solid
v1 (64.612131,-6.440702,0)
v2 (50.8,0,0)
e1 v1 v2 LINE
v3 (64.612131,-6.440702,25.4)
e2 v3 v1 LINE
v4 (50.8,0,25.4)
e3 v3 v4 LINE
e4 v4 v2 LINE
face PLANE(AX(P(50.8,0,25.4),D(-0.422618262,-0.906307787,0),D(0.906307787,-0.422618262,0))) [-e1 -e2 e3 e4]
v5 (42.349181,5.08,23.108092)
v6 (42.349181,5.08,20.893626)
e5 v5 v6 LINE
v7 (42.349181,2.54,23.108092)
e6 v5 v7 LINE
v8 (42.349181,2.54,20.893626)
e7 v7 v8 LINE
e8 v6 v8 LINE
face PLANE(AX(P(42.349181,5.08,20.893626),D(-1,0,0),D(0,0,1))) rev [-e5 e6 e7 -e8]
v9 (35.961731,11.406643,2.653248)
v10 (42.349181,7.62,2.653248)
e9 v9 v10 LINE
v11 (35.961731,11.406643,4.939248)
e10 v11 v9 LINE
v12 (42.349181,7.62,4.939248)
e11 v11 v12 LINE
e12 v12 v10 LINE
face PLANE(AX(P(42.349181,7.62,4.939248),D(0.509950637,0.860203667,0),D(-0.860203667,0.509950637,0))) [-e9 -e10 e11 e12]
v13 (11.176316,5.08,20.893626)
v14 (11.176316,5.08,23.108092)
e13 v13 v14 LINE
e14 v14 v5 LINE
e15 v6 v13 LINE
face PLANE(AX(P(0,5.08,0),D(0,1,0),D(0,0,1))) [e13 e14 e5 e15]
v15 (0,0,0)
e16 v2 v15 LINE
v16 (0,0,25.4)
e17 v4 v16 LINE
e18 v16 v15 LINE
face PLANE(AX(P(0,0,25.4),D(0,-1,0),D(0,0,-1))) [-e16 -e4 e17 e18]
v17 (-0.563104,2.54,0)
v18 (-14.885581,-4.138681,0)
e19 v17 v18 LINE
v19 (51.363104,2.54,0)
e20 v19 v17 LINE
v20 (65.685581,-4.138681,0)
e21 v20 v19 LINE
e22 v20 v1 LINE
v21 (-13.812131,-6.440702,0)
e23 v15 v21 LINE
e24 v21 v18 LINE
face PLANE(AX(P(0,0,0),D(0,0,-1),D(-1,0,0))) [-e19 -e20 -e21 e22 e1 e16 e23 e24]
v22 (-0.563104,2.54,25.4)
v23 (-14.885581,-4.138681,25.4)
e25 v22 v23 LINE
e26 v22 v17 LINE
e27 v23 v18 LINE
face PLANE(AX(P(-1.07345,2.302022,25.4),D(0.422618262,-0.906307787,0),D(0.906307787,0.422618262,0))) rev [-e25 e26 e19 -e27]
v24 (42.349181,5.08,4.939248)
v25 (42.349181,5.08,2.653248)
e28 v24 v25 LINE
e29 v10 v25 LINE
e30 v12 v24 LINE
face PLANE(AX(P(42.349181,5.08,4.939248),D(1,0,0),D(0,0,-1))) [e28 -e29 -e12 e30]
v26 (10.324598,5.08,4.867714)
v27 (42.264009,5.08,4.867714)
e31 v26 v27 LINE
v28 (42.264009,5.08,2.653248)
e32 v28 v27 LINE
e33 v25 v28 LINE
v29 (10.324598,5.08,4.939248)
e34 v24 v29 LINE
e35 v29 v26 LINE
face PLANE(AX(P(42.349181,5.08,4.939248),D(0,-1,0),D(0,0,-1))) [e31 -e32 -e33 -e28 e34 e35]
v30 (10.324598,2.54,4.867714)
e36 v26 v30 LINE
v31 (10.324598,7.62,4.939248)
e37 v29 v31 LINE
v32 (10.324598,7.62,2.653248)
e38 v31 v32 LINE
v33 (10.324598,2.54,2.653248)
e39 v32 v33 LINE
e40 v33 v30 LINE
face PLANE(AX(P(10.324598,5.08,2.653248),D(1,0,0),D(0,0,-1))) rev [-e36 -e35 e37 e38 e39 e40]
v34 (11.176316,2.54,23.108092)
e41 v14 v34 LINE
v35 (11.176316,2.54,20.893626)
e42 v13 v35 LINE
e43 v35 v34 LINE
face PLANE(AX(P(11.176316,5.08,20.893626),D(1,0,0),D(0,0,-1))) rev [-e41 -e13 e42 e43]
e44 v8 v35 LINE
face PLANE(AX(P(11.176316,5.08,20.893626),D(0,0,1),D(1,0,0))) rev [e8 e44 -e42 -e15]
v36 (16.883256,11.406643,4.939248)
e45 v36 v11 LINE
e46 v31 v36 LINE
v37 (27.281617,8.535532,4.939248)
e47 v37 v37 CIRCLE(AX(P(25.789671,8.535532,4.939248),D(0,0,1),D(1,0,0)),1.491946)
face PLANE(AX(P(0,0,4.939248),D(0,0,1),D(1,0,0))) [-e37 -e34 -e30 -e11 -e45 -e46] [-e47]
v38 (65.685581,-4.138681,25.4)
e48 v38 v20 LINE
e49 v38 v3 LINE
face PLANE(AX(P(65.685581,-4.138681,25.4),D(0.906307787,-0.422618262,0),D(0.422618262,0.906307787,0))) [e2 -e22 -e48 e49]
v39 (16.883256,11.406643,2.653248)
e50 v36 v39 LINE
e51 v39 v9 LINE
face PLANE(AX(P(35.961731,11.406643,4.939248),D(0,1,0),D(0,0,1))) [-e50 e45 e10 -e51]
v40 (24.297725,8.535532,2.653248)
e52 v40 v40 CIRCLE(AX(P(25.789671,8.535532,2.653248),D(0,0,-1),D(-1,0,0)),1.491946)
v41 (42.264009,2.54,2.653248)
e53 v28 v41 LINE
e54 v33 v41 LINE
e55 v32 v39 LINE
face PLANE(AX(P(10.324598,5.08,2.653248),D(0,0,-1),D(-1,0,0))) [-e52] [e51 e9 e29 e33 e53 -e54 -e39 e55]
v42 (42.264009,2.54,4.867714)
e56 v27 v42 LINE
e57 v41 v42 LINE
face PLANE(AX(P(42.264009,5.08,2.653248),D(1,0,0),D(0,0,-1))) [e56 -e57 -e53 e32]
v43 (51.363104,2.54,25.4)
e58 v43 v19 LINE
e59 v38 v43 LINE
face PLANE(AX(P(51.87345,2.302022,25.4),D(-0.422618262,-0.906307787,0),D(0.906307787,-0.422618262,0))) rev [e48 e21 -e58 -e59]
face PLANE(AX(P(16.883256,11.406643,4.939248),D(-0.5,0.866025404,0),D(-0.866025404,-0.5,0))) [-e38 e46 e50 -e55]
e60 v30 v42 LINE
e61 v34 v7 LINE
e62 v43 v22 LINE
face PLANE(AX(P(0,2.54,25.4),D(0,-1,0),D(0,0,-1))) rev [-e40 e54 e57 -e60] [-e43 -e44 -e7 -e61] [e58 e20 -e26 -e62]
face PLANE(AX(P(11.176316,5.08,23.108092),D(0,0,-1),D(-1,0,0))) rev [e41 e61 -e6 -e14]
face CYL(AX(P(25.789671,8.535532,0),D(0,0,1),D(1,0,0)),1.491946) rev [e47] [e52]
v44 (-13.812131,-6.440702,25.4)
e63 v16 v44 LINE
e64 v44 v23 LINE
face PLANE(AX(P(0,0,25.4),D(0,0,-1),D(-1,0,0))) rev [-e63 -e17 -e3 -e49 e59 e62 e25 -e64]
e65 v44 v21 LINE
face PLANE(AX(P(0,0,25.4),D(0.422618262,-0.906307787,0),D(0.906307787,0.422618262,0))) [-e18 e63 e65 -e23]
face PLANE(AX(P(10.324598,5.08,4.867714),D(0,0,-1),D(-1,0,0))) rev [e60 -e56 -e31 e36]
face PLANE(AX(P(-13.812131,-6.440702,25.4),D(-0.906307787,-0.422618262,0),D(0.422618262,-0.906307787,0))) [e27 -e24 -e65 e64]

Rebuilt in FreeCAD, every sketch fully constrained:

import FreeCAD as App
import Part
import Sketcher
from FreeCAD import Vector
Q = App.Units.Quantity


def add_polygon(sketch, points):
    """Adds a closed chain of lines whose ends are joined by coincident constraints."""
    first, n = sketch.GeometryCount, len(points)
    for a, b in zip(points, points[1:] + points[:1]):
        sketch.addGeometry(Part.LineSegment(App.Vector(*a, 0), App.Vector(*b, 0)), False)
    for i in range(n):
        sketch.addConstraint(Sketcher.Constraint("Coincident", first + i, 2, first + (i + 1) % n, 1))

doc = App.newDocument("Part")
params = doc.addObject("Spreadsheet::Sheet", "Params")
for row, (alias, value) in enumerate([
    ("sketch1_width", "2 in"),
    ("sketch1_length", "0.6 in"),
    ("sketch1_length2", "0.1 in"),
    ("pad1_length", "1 in"),
    ("pad2_length", "0.1 in"),
    ("pad3_length", "0.1 in"),
    ("sketch4_height", "0.1 in"),
    ("pad4_length", "0.09 in"),
], start=1):
    params.set(f"A{row}", alias)
    params.set(f"B{row}", "=" + value)
    params.setAlias(f"B{row}", alias)

body = doc.addObject("PartDesign::Body", "Body")

sketch1 = body.newObject("Sketcher::SketchObject", "Sketch")
sketch1.AttachmentSupport = (doc.getObject("XY_Plane"), [""])
sketch1.MapMode = "FlatFace"
add_polygon(sketch1, [(-13.812131, -6.440702), (0, 0), (50.8, 0), (64.612131, -6.440702), (65.685581, -4.138681), (51.363104, 2.54), (-0.563104, 2.54), (-14.885581, -4.138681)])
sketch1.addConstraint([
    Sketcher.Constraint("Horizontal", 1),
    Sketcher.Constraint("Horizontal", 5),
    Sketcher.Constraint("Coincident", 0, 2, -1, 1),
    Sketcher.Constraint("Perpendicular", 2, 3),
    Sketcher.Constraint("Perpendicular", 3, 4),
    Sketcher.Constraint("Parallel", 0, 6),
    Sketcher.Constraint("Perpendicular", 6, 7),
    Sketcher.Constraint("Horizontal", 3, 2, 6, 2),
    Sketcher.Constraint("Horizontal", 2, 2, 7, 2),
    Sketcher.Constraint("Equal", 0, 2),
    Sketcher.Constraint("DistanceX", 1, 1, 1, 2, Q("2 in")),
    Sketcher.Constraint("Angle", 0, Q("25 deg")),
    Sketcher.Constraint("Distance", 0, Q("0.6 in")),
    Sketcher.Constraint("Distance", 3, Q("0.1 in")),
    Sketcher.Constraint("DistanceY", -1, 1, 4, 2, Q("0.1 in")),
])
sketch1.setExpression("Constraints[18]", "Params.sketch1_width")
sketch1.setExpression("Constraints[20]", "Params.sketch1_length")
sketch1.setExpression("Constraints[21]", "Params.sketch1_length2")
pad1 = body.newObject("PartDesign::Pad", "Pad")
pad1.Profile = sketch1
pad1.setExpression("Length", "Params.pad1_length")

sketch2 = body.newObject("Sketcher::SketchObject", "Sketch001")
sketch2.AttachmentSupport = (doc.getObject("XZ_Plane"), [""])
sketch2.MapMode = "FlatFace"
sketch2.AttachmentOffset = App.Placement(Vector(0, 0, -0.1 * 25.4), App.Rotation())
add_polygon(sketch2, [(10.324598, 2.653248), (10.324598, 4.867714), (42.264009, 4.867714), (42.264009, 2.653248)])
sketch2.addConstraint([
    Sketcher.Constraint("Vertical", 0),
    Sketcher.Constraint("Horizontal", 1),
    Sketcher.Constraint("Vertical", 2),
    Sketcher.Constraint("Horizontal", 3),
    Sketcher.Constraint("DistanceX", 1, 1, 1, 2, Q("31.939411 mm")),
    Sketcher.Constraint("DistanceY", 0, 1, 0, 2, Q("2.214466 mm")),
    Sketcher.Constraint("DistanceX", -1, 1, 1, 2, Q("42.264009 mm")),
    Sketcher.Constraint("DistanceY", -1, 1, 2, 2, Q("2.653248 mm")),
])
pad2 = body.newObject("PartDesign::Pad", "Pad001")
pad2.Profile = sketch2
pad2.setExpression("Length", "Params.pad2_length")
pad2.Reversed = True

sketch3 = body.newObject("Sketcher::SketchObject", "Sketch002")
sketch3.AttachmentSupport = (doc.getObject("XZ_Plane"), [""])
sketch3.MapMode = "FlatFace"
sketch3.AttachmentOffset = App.Placement(Vector(0, 0, -0.1 * 25.4), App.Rotation())
add_polygon(sketch3, [(11.176316, 20.893626), (11.176316, 23.108092), (42.349181, 23.108092), (42.349181, 20.893626)])
sketch3.addConstraint([
    Sketcher.Constraint("Vertical", 0),
    Sketcher.Constraint("Horizontal", 1),
    Sketcher.Constraint("Vertical", 2),
    Sketcher.Constraint("Horizontal", 3),
    Sketcher.Constraint("DistanceX", 1, 1, 1, 2, Q("31.172865 mm")),
    Sketcher.Constraint("DistanceY", 0, 1, 0, 2, Q("2.214466 mm")),
    Sketcher.Constraint("DistanceX", -1, 1, 1, 2, Q("42.349181 mm")),
    Sketcher.Constraint("DistanceY", -1, 1, 0, 2, Q("23.108092 mm")),
])
pad3 = body.newObject("PartDesign::Pad", "Pad002")
pad3.Profile = sketch3
pad3.setExpression("Length", "Params.pad3_length")
pad3.Reversed = True

sketch4 = body.newObject("Sketcher::SketchObject", "Sketch003")
sketch4.AttachmentSupport = (doc.getObject("XY_Plane"), [""])
sketch4.MapMode = "FlatFace"
sketch4.AttachmentOffset = App.Placement(Vector(0, 0, 2.653248), App.Rotation())
add_polygon(sketch4, [(42.349181, 7.62), (42.349181, 5.08), (10.324598, 5.08), (10.324598, 7.62), (16.883256, 11.406643), (35.961731, 11.406643)])
sketch4.addConstraint([
    Sketcher.Constraint("Vertical", 0),
    Sketcher.Constraint("Horizontal", 1),
    Sketcher.Constraint("Vertical", 2),
    Sketcher.Constraint("Horizontal", 4),
    Sketcher.Constraint("Horizontal", 2, 2, 5, 2),
    Sketcher.Constraint("DistanceY", 0, 2, 0, 1, Q("0.1 in")),
    Sketcher.Constraint("Angle", 3, Q("30 deg")),
    Sketcher.Constraint("DistanceY", -1, 1, 0, 2, Q("0.2 in")),
    Sketcher.Constraint("Distance", 5, Q("7.425509 mm")),
    Sketcher.Constraint("DistanceX", 1, 2, 1, 1, Q("32.024583 mm")),
    Sketcher.Constraint("DistanceX", 4, 1, 4, 2, Q("19.078475 mm")),
    Sketcher.Constraint("DistanceX", -1, 1, 0, 2, Q("42.349181 mm")),
])
sketch4.setExpression("Constraints[11]", "Params.sketch4_height")
pad4 = body.newObject("PartDesign::Pad", "Pad003")
pad4.Profile = sketch4
pad4.setExpression("Length", "Params.pad4_length")

sketch5 = body.newObject("Sketcher::SketchObject", "Sketch004")
sketch5.AttachmentSupport = (doc.getObject("XY_Plane"), [""])
sketch5.MapMode = "FlatFace"
sketch5.AttachmentOffset = App.Placement(Vector(0, 0, 4.939248), App.Rotation())
sketch5.addGeometry(Part.Circle(Vector(25.789671, 8.535532, 0), Vector(0, 0, 1), 1.491946), False)
sketch5.addConstraint([
    Sketcher.Constraint("Diameter", 0, Q("2.983893 mm")),
    Sketcher.Constraint("DistanceX", -1, 1, 0, 3, Q("25.789671 mm")),
    Sketcher.Constraint("DistanceY", -1, 1, 0, 3, Q("8.535532 mm")),
])
pocket1 = body.newObject("PartDesign::Pocket", "Pocket")
pocket1.Profile = sketch5
pocket1.Type = "ThroughAll"

doc.recompute()
